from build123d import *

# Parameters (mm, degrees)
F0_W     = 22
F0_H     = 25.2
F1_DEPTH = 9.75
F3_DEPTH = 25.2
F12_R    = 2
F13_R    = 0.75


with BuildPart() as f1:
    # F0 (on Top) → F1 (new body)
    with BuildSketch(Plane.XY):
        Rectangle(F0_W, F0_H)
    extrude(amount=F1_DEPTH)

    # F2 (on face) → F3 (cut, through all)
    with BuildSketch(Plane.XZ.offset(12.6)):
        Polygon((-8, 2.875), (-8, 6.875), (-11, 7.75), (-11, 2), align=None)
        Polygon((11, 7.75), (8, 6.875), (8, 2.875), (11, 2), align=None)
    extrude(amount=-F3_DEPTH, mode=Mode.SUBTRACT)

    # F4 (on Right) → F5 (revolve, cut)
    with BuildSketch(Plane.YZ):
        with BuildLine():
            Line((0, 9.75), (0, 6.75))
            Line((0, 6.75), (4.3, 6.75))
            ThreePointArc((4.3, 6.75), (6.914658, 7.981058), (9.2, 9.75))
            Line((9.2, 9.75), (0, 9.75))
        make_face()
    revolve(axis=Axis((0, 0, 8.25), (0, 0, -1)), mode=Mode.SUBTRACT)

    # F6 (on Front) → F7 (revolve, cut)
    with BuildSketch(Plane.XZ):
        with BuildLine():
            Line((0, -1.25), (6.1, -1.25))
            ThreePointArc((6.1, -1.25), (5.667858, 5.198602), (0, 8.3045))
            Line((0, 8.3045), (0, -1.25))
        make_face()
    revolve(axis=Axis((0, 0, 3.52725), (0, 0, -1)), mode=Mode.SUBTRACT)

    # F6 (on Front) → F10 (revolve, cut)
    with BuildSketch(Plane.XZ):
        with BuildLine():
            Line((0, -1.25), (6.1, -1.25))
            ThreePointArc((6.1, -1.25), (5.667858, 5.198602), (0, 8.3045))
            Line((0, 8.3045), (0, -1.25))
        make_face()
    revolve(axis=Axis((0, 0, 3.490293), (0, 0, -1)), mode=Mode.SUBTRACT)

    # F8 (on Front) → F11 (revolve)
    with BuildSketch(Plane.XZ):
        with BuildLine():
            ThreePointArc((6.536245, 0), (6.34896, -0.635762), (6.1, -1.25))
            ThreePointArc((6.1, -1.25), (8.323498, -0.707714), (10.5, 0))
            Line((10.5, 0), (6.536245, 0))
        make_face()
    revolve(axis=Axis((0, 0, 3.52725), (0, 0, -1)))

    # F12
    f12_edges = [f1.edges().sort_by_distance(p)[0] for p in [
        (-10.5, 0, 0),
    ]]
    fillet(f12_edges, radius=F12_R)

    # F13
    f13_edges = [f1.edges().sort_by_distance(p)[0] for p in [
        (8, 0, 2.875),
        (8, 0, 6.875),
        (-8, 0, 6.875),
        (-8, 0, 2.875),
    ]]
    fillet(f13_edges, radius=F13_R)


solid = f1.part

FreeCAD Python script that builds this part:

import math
import FreeCAD as App
import Part
import Sketcher
from FreeCAD import Vector


def edges_at(feature, points):
    """Names of the edges that pass closest to the given points."""
    edges = feature.Shape.Edges
    near = lambda p: min(range(len(edges)), key=lambda i: edges[i].distToShape(Part.Vertex(*p))[0])
    return sorted({f"Edge{near(p) + 1}" for p in points})


def add_polygon(sketch, points):
    """Adds a closed chain of lines whose ends are joined by coincident constraints."""
    first, n = sketch.GeometryCount, len(points)
    for a, b in zip(points, points[1:] + points[:1]):
        sketch.addGeometry(Part.LineSegment(App.Vector(*a, 0), App.Vector(*b, 0)), False)
    for i in range(n):
        sketch.addConstraint(Sketcher.Constraint("Coincident", first + i, 2, first + (i + 1) % n, 1))

doc = App.newDocument("Part")
body = doc.addObject("PartDesign::Body", "Body")

sketch1 = body.newObject("Sketcher::SketchObject", "Sketch")
sketch1.AttachmentSupport = (doc.getObject("XY_Plane"), [""])
sketch1.MapMode = "FlatFace"
add_polygon(sketch1, [(-11, 13), (-11, -13), (11, -13), (11, 13)])
sketch1.addConstraint(Sketcher.Constraint("Vertical", 0))
sketch1.addConstraint(Sketcher.Constraint("Horizontal", 1))
sketch1.addConstraint(Sketcher.Constraint("Vertical", 2))
sketch1.addConstraint(Sketcher.Constraint("Horizontal", 3))
sketch1.addConstraint(Sketcher.Constraint("Symmetric", 0, 2, 2, 2, -1, 1))
sketch1.addConstraint(Sketcher.Constraint("DistanceX", 1, 1, 1, 2, 22.0))
sketch1.addConstraint(Sketcher.Constraint("DistanceY", 0, 2, 0, 1, 25.2))
pad1 = body.newObject("PartDesign::Pad", "Pad")
pad1.Profile = sketch1
pad1.Length = 9.75

sketch2 = body.newObject("Sketcher::SketchObject", "Sketch001")
sketch2.AttachmentSupport = (doc.getObject("XZ_Plane"), [""])
sketch2.MapMode = "FlatFace"
sketch2.AttachmentOffset = App.Placement(Vector(0, 0, 12.6), App.Rotation())
add_polygon(sketch2, [(-8, 2.9), (-8, 6.9), (-11, 7.8), (-11, 2)])
add_polygon(sketch2, [(11, 7.8), (8, 6.9), (8, 2.9), (11, 2)])
sketch2.addConstraint(Sketcher.Constraint("Vertical", 0))
sketch2.addConstraint(Sketcher.Constraint("Vertical", 2))
sketch2.addConstraint(Sketcher.Constraint("Vertical", 5))
sketch2.addConstraint(Sketcher.Constraint("Vertical", 7))
sketch2.addConstraint(Sketcher.Constraint("Symmetric", 0, 2, 4, 2, -2))
sketch2.addConstraint(Sketcher.Constraint("Symmetric", 2, 2, 6, 2, -2))
sketch2.addConstraint(Sketcher.Constraint("Parallel", 3, 4))
sketch2.addConstraint(Sketcher.Constraint("Parallel", 1, 6))
sketch2.addConstraint(Sketcher.Constraint("Horizontal", 3, 2, 5, 2))
sketch2.addConstraint(Sketcher.Constraint("DistanceY", 0, 1, 0, 2, 4.0))
sketch2.addConstraint(Sketcher.Constraint("DistanceX", 0, 2, -1, 1, 8.0))
sketch2.addConstraint(Sketcher.Constraint("DistanceX", 1, 2, -1, 1, 11.0))
sketch2.addConstraint(Sketcher.Constraint("DistanceY", -1, 1, 2, 2, 2.0))
sketch2.addConstraint(Sketcher.Constraint("DistanceY", 2, 2, 2, 1, 5.75))
pocket1 = body.newObject("PartDesign::Pocket", "Pocket")
pocket1.Profile = sketch2
pocket1.Type = "ThroughAll"

sketch3 = body.newObject("Sketcher::SketchObject", "Sketch002")
sketch3.AttachmentSupport = (doc.getObject("YZ_Plane"), [""])
sketch3.MapMode = "FlatFace"
sketch3.addGeometry(Part.LineSegment(Vector(0, 9.8, 0), Vector(0, 6.8, 0)), False)
sketch3.addGeometry(Part.LineSegment(Vector(0, 6.8, 0), Vector(4.3, 6.8, 0)), False)
sketch3.addGeometry(Part.ArcOfCircle(Part.Circle(Vector(0, 19.3, 0), Vector(0, 0, 1), 13.2), math.radians(-71), math.radians(-46)), False)
sketch3.addGeometry(Part.LineSegment(Vector(9.2, 9.8, 0), Vector(0, 9.8, 0)), False)
sketch3.addConstraint(Sketcher.Constraint("Coincident", 0, 2, 1, 1))
sketch3.addConstraint(Sketcher.Constraint("Coincident", 1, 2, 2, 1))
sketch3.addConstraint(Sketcher.Constraint("Coincident", 2, 2, 3, 1))
sketch3.addConstraint(Sketcher.Constraint("Coincident", 3, 2, 0, 1))
sketch3.addConstraint(Sketcher.Constraint("Vertical", 0))
sketch3.addConstraint(Sketcher.Constraint("Horizontal", 1))
sketch3.addConstraint(Sketcher.Constraint("Horizontal", 3))
sketch3.addConstraint(Sketcher.Constraint("PointOnObject", 0, 2, -2))
sketch3.addConstraint(Sketcher.Constraint("DistanceY", 0, 2, 0, 1, 3.0))
sketch3.addConstraint(Sketcher.Constraint("DistanceX", 1, 1, 1, 2, 4.3))
sketch3.addConstraint(Sketcher.Constraint("DistanceX", 3, 2, 3, 1, 9.2))
sketch3.addConstraint(Sketcher.Constraint("DistanceY", -1, 1, 0, 2, 6.75))
sketch3.addConstraint(Sketcher.Constraint("Radius", 2, 13.242575))
groove = body.newObject("PartDesign::Groove", "Groove")
groove.Profile = sketch3
groove.ReferenceAxis = (sketch3, ["V_Axis"])
groove.Angle = 360

sketch4 = body.newObject("Sketcher::SketchObject", "Sketch003")
sketch4.AttachmentSupport = (doc.getObject("XZ_Plane"), [""])
sketch4.MapMode = "FlatFace"
sketch4.addGeometry(Part.LineSegment(Vector(0, -1, 0), Vector(6, -1, 0)), False)
sketch4.addGeometry(Part.ArcOfCircle(Part.Circle(Vector(0, 2, 0), Vector(0, 0, 1), 7), math.radians(-25), math.radians(90)), False)
sketch4.addGeometry(Part.LineSegment(Vector(0, 8, 0), Vector(0, -1, 0)), False)
sketch4.addConstraint(Sketcher.Constraint("Coincident", 0, 2, 1, 1))
sketch4.addConstraint(Sketcher.Constraint("Coincident", 1, 2, 2, 1))
sketch4.addConstraint(Sketcher.Constraint("Coincident", 2, 2, 0, 1))
sketch4.addConstraint(Sketcher.Constraint("Horizontal", 0))
sketch4.addConstraint(Sketcher.Constraint("Vertical", 2))
sketch4.addConstraint(Sketcher.Constraint("PointOnObject", 1, 3, -2))
sketch4.addConstraint(Sketcher.Constraint("PointOnObject", 1, 2, -2))
sketch4.addConstraint(Sketcher.Constraint("DistanceX", 0, 1, 0, 2, 6.1))
sketch4.addConstraint(Sketcher.Constraint("Radius", 1, 6.7245))
sketch4.addConstraint(Sketcher.Constraint("DistanceY", -1, 1, 1, 3, 1.58))
groove2 = body.newObject("PartDesign::Groove", "Groove001")
groove2.Profile = sketch4
groove2.ReferenceAxis = (sketch4, ["V_Axis"])
groove2.Angle = 360

sketch5 = body.newObject("Sketcher::SketchObject", "Sketch004")
sketch5.AttachmentSupport = (doc.getObject("XZ_Plane"), [""])
sketch5.MapMode = "FlatFace"
sketch5.addGeometry(Part.LineSegment(Vector(0, -1, 0), Vector(6, -1, 0)), False)
sketch5.addGeometry(Part.ArcOfCircle(Part.Circle(Vector(0, 2, 0), Vector(0, 0, 1), 7), math.radians(-25), math.radians(90)), False)
sketch5.addGeometry(Part.LineSegment(Vector(0, 8, 0), Vector(0, -1, 0)), False)
sketch5.addConstraint(Sketcher.Constraint("Coincident", 0, 2, 1, 1))
sketch5.addConstraint(Sketcher.Constraint("Coincident", 1, 2, 2, 1))
sketch5.addConstraint(Sketcher.Constraint("Coincident", 2, 2, 0, 1))
sketch5.addConstraint(Sketcher.Constraint("Horizontal", 0))
sketch5.addConstraint(Sketcher.Constraint("Vertical", 2))
sketch5.addConstraint(Sketcher.Constraint("PointOnObject", 1, 3, -2))
sketch5.addConstraint(Sketcher.Constraint("PointOnObject", 1, 2, -2))
sketch5.addConstraint(Sketcher.Constraint("DistanceX", 0, 1, 0, 2, 6.1))
sketch5.addConstraint(Sketcher.Constraint("Radius", 1, 6.7245))
sketch5.addConstraint(Sketcher.Constraint("DistanceY", -1, 1, 1, 3, 1.58))
groove3 = body.newObject("PartDesign::Groove", "Groove002")
groove3.Profile = sketch5
groove3.ReferenceAxis = (sketch5, ["V_Axis"])
groove3.Angle = 360

sketch6 = body.newObject("Sketcher::SketchObject", "Sketch005")
sketch6.AttachmentSupport = (doc.getObject("XZ_Plane"), [""])
sketch6.MapMode = "FlatFace"
sketch6.addGeometry(Part.ArcOfCircle(Part.Circle(Vector(0, 1.6, 0), Vector(0, 0, 1), 6.7), math.radians(-24.89), math.radians(-13.59)), False)
sketch6.addGeometry(Part.ArcOfCircle(Part.Circle(Vector(0, 28.6, 0), Vector(0, 0, 1), 30.5), math.radians(-78.45), math.radians(-69.83)), False)
sketch6.addGeometry(Part.LineSegment(Vector(10.5, 0, 0), Vector(6.5, 0, 0)), False)
sketch6.addConstraint(Sketcher.Constraint("Coincident", 0, 1, 1, 1))
sketch6.addConstraint(Sketcher.Constraint("Coincident", 1, 2, 2, 1))
sketch6.addConstraint(Sketcher.Constraint("Coincident", 2, 2, 0, 2))
sketch6.addConstraint(Sketcher.Constraint("Horizontal", 2))
sketch6.addConstraint(Sketcher.Constraint("PointOnObject", 1, 2, -1))
sketch6.addConstraint(Sketcher.Constraint("DistanceX", -1, 1, 0, 1, 6.1))
sketch6.addConstraint(Sketcher.Constraint("DistanceX", -1, 1, 1, 2, 10.5))
sketch6.addConstraint(Sketcher.Constraint("DistanceY", 0, 1, -1, 1, 1.25))
sketch6.addConstraint(Sketcher.Constraint("Radius", 0, 6.724577))
sketch6.addConstraint(Sketcher.Constraint("Radius", 1, 30.458206))
sketch6.addConstraint(Sketcher.Constraint("DistanceX", 2, 2, 2, 1, 3.963755))
revolution = body.newObject("PartDesign::Revolution", "Revolution")
revolution.Profile = sketch6
revolution.ReferenceAxis = (sketch6, ["V_Axis"])
revolution.Angle = 360
doc.recompute()

fillet = body.newObject("PartDesign::Fillet", "Fillet")
fillet.Base = (revolution, edges_at(revolution, [(-10.5, 0, 0)]))
fillet.Radius = 2
doc.recompute()

fillet2 = body.newObject("PartDesign::Fillet", "Fillet001")
fillet2.Base = (fillet, edges_at(fillet, [
    (8, 0, 2.875),
    (8, 0, 6.875),
    (-8, 0, 6.875),
    (-8, 0, 2.875),
]))
fillet2.Radius = 0.75

doc.recompute()
